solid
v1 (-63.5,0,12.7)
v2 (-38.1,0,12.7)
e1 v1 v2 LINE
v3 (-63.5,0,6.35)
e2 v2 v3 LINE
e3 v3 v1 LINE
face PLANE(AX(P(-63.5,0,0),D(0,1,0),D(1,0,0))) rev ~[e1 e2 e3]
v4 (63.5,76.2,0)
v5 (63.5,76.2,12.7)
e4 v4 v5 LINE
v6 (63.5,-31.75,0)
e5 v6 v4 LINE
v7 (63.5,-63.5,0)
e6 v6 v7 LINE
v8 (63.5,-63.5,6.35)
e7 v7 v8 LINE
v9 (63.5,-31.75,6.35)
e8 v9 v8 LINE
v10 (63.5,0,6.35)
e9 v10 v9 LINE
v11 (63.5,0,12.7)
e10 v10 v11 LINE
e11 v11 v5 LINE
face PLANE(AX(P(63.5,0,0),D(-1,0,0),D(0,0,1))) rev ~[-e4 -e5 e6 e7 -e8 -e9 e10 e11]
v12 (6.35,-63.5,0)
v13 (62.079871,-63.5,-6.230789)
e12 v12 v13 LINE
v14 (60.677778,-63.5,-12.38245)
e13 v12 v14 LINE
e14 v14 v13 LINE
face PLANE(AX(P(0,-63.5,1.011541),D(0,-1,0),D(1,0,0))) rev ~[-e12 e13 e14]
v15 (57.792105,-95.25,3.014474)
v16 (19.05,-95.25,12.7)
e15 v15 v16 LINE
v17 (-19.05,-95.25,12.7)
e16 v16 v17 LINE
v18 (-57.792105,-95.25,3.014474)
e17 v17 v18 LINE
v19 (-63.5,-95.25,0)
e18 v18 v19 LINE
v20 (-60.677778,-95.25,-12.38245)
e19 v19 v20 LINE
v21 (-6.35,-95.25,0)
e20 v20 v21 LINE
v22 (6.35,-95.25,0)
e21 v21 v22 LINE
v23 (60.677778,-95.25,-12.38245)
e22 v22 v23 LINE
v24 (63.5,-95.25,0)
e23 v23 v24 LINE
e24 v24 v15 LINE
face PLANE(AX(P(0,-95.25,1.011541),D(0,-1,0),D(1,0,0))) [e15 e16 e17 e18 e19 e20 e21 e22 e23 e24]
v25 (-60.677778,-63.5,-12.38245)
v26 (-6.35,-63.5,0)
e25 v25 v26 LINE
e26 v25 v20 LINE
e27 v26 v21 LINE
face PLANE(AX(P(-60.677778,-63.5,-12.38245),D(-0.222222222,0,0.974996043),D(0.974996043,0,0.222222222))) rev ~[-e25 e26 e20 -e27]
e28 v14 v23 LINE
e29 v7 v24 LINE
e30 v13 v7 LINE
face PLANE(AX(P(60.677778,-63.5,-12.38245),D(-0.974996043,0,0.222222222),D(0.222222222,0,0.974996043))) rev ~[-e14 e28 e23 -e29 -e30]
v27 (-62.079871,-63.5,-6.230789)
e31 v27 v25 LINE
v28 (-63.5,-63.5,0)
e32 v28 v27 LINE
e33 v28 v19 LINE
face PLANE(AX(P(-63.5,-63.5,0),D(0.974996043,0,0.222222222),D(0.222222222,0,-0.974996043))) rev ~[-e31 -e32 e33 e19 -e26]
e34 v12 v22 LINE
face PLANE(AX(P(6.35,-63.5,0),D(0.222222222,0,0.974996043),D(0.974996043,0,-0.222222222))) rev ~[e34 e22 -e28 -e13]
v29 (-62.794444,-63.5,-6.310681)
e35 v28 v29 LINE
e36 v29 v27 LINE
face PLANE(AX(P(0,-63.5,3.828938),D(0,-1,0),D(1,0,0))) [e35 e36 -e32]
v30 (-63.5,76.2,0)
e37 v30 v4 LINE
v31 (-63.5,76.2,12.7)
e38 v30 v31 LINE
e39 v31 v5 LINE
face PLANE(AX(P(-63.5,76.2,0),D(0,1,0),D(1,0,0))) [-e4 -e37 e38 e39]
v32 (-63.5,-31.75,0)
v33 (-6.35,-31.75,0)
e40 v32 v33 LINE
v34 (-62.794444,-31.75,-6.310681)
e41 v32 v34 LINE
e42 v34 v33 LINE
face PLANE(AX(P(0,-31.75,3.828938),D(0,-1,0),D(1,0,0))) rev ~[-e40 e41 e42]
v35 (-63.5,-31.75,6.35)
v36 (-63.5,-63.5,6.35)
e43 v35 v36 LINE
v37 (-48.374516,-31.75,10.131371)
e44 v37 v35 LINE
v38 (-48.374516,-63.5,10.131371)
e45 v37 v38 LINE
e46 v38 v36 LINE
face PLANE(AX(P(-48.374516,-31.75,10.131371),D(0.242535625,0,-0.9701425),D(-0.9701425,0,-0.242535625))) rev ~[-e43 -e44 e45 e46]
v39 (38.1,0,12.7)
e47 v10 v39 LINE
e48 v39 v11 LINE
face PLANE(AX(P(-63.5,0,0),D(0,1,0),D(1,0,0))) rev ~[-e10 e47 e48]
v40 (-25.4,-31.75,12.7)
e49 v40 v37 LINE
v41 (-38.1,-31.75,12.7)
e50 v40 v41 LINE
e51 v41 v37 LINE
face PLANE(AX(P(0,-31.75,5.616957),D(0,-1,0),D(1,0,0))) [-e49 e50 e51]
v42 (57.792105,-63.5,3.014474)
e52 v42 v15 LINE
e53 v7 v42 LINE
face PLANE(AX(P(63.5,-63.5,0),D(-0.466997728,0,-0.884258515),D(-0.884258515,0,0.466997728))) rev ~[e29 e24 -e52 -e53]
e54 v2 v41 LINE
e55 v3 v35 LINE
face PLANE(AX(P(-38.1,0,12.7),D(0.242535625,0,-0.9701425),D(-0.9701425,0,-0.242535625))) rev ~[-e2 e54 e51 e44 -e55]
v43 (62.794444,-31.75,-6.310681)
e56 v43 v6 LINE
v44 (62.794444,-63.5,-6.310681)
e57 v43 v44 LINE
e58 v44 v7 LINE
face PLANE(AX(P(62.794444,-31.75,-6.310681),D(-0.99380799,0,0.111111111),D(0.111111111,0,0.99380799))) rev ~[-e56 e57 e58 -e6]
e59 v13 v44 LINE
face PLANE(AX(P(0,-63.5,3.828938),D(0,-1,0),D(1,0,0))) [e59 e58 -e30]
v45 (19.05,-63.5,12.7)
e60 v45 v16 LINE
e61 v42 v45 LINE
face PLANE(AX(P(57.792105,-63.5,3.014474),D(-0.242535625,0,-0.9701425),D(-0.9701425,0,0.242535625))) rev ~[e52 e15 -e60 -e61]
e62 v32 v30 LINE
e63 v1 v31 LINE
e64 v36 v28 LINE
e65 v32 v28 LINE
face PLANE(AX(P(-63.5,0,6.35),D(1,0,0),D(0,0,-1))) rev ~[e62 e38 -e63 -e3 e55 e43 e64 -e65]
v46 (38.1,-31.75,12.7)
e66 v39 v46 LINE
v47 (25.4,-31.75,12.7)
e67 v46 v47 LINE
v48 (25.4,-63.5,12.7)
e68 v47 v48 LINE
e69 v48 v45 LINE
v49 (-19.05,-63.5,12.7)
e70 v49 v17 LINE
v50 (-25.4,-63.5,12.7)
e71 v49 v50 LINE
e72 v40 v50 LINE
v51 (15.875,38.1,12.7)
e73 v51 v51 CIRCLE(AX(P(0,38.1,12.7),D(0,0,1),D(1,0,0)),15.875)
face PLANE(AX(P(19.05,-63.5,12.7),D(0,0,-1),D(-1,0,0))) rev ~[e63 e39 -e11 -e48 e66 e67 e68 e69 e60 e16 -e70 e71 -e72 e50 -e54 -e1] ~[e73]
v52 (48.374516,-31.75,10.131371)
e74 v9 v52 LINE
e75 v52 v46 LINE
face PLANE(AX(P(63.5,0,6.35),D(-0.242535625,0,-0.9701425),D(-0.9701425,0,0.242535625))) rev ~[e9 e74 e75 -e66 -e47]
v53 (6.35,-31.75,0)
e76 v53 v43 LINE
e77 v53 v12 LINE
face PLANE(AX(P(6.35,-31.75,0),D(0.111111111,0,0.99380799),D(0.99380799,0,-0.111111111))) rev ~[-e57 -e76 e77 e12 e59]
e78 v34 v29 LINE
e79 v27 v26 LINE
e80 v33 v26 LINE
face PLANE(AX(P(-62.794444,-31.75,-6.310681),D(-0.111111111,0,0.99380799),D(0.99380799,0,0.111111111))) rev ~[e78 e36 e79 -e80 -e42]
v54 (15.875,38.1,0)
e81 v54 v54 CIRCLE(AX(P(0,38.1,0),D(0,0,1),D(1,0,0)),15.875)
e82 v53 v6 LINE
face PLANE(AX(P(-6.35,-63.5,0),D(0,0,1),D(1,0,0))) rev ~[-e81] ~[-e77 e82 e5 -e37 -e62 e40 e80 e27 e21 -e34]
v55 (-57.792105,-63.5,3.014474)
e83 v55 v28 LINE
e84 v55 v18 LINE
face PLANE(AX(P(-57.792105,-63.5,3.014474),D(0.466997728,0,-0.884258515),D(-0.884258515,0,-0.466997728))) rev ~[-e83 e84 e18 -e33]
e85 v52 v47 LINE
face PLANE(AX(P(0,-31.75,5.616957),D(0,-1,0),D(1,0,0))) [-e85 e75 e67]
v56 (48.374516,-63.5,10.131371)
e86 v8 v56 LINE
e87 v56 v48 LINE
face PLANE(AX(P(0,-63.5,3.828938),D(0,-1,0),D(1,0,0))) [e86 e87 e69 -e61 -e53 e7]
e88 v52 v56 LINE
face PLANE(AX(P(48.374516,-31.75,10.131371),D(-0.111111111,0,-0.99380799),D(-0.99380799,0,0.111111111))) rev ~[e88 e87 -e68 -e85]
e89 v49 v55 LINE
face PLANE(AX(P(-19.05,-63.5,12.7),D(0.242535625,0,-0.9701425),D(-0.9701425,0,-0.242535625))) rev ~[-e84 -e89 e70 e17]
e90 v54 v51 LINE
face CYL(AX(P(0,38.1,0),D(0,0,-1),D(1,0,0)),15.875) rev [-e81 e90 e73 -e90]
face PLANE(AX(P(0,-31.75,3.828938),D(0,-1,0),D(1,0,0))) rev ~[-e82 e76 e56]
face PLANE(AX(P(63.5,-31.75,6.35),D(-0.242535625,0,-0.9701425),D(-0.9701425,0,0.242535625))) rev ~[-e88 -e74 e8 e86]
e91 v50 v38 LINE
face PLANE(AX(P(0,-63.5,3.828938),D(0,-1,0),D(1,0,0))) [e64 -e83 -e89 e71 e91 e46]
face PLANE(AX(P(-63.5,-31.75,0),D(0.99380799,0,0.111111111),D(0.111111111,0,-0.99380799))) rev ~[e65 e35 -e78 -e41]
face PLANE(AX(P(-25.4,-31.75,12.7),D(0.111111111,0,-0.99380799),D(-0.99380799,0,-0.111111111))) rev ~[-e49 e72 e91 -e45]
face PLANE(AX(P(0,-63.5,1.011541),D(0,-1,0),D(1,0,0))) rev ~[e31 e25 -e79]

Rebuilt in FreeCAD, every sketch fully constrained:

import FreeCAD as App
import Part
import Sketcher

V = App.Vector
Q = App.Units.Quantity


def add_polygon(sketch, points):
    """Adds a closed chain of lines whose ends are joined by coincident constraints."""
    first, n = sketch.GeometryCount, len(points)
    for a, b in zip(points, points[1:] + points[:1]):
        sketch.addGeometry(Part.LineSegment(App.Vector(*a, 0), App.Vector(*b, 0)), False)
    for i in range(n):
        sketch.addConstraint(Sketcher.Constraint("Coincident", first + i, 2, first + (i + 1) % n, 1))

doc = App.newDocument("Part")
body = doc.addObject("PartDesign::Body", "Body")

# Sketch on XY plane
sketch1 = body.newObject("Sketcher::SketchObject", "Sketch")
sketch1.AttachmentSupport = (doc.getObject("XY_Plane"), [""])
sketch1.MapMode = "FlatFace"
add_polygon(sketch1, [(-64, 76), (-64, 0), (64, 0), (64, 76)])  # lines 0-3
sketch1.addGeometry(Part.Circle(V(0, 38, 0), V(0, 0, 1), 16), False)  # 4
sketch1.addConstraint([
    Sketcher.Constraint("Vertical", 0),
    Sketcher.Constraint("Horizontal", 1),
    Sketcher.Constraint("Vertical", 2),
    Sketcher.Constraint("Horizontal", 3),
    Sketcher.Constraint("Symmetric", 0, 2, 1, 2, -1, 1),
    Sketcher.Constraint("PointOnObject", 4, 3, -2),
    Sketcher.Constraint("Diameter", 4, Q("1.25 in")),
    Sketcher.Constraint("DistanceX", 1, 1, 1, 2, Q("5 in")),
    Sketcher.Constraint("DistanceY", 0, 2, 0, 1, Q("3 in")),
    Sketcher.Constraint("DistanceY", -1, 1, 4, 3, Q("1.5 in")),
])
pad1 = body.newObject("PartDesign::Pad", "Pad")
pad1.Profile = sketch1
pad1.Length = Q("0.5 in")

# Sketch on XZ plane
sketch2 = body.newObject("Sketcher::SketchObject", "Sketch001")
sketch2.AttachmentSupport = (doc.getObject("XZ_Plane"), [""])
sketch2.MapMode = "FlatFace"
add_polygon(sketch2, [(64, 0), (64, 6), (38, 13), (-38, 13), (-64, 6), (-64, 0)])  # lines 0-5
sketch2.addConstraint([
    Sketcher.Constraint("Vertical", 0),
    Sketcher.Constraint("Horizontal", 2),
    Sketcher.Constraint("Vertical", 4),
    Sketcher.Constraint("Horizontal", 5),
    Sketcher.Constraint("Symmetric", 4, 2, 5, 2, -1, 1),
    Sketcher.Constraint("Horizontal", 0, 2, 3, 2),
    Sketcher.Constraint("Equal", 1, 3),
    Sketcher.Constraint("DistanceX", 2, 2, 2, 1, Q("3 in")),
    Sketcher.Constraint("DistanceX", 5, 1, 5, 2, Q("5 in")),
    Sketcher.Constraint("DistanceY", 0, 1, 0, 2, Q("0.25 in")),
    Sketcher.Constraint("DistanceY", -1, 1, 1, 2, Q("0.5 in")),
])
pad2 = body.newObject("PartDesign::Pad", "Pad001")
pad2.Profile = sketch2
pad2.Length = Q("1.25 in")

# Sketch on XZ plane
sketch3 = body.newObject("Sketcher::SketchObject", "Sketch002")
sketch3.AttachmentSupport = (doc.getObject("XZ_Plane"), [""])
sketch3.MapMode = "FlatFace"
sketch3.AttachmentOffset = App.Placement(V(0, 0, 1.25 * 25.4), App.Rotation())
add_polygon(sketch3, [(-6, 0), (6, 0), (63, -6), (64, 0), (64, 6), (48, 10), (25, 13), (-25, 13), (-48, 10), (-64, 6), (-64, 0), (-63, -6)])  # lines 0-11
sketch3.addConstraint([
    Sketcher.Constraint("Horizontal", 0),
    Sketcher.Constraint("Vertical", 3),
    Sketcher.Constraint("Horizontal", 6),
    Sketcher.Constraint("Vertical", 9),
    Sketcher.Constraint("Symmetric", 2, 2, 9, 2, -1, 1),
    Sketcher.Constraint("Symmetric", 0, 2, 11, 2, -1, 1),
    Sketcher.Constraint("Symmetric", 4, 2, 7, 2, -2),
    Sketcher.Constraint("Symmetric", 1, 2, 10, 2, -2),
    Sketcher.Constraint("PointOnObject", 2, 2, -1),
    Sketcher.Constraint("Perpendicular", 1, 2),
    Sketcher.Constraint("Perpendicular", 2, 5),
    Sketcher.Constraint("Perpendicular", 7, 10),
    Sketcher.Constraint("Horizontal", 3, 2, 8, 2),
    Sketcher.Constraint("DistanceX", 6, 2, 6, 1, Q("2 in")),
    Sketcher.Constraint("DistanceX", 0, 1, 0, 2, Q("0.5 in")),
    Sketcher.Constraint("DistanceY", 3, 1, 3, 2, Q("0.25 in")),
    Sketcher.Constraint("DistanceX", -1, 1, 2, 2, Q("2.5 in")),
    Sketcher.Constraint("DistanceY", -1, 1, 5, 2, Q("0.5 in")),
    Sketcher.Constraint("Distance", 2, Q("0.25 in")),
    Sketcher.Constraint("Distance", 5, 23.117661),
])
pad3 = body.newObject("PartDesign::Pad", "Pad002")
pad3.Profile = sketch3
pad3.Length = Q("1.25 in")

# Sketch on XZ plane
sketch4 = body.newObject("Sketcher::SketchObject", "Sketch003")
sketch4.AttachmentSupport = (doc.getObject("XZ_Plane"), [""])
sketch4.MapMode = "FlatFace"
sketch4.AttachmentOffset = App.Placement(V(0, 0, 2.5 * 25.4), App.Rotation())
add_polygon(sketch4, [(-6, 0), (6, 0), (61, -12), (64, 0), (58, 3), (19, 13), (-19, 13), (-58, 3), (-64, 0), (-61, -12)])  # lines 0-9
sketch4.addConstraint([
    Sketcher.Constraint("Horizontal", 0),
    Sketcher.Constraint("Horizontal", 5),
    Sketcher.Constraint("Symmetric", 2, 2, 7, 2, -1, 1),
    Sketcher.Constraint("Symmetric", 0, 2, 9, 2, -1, 1),
    Sketcher.Constraint("Symmetric", 3, 2, 6, 2, -2),
    Sketcher.Constraint("Symmetric", 1, 2, 8, 2, -2),
    Sketcher.Constraint("PointOnObject", 2, 2, -1),
    Sketcher.Constraint("Perpendicular", 1, 2),
    Sketcher.Constraint("Equal", 4, 6),
    Sketcher.Constraint("DistanceX", 0, 1, 0, 2, Q("0.5 in")),
    Sketcher.Constraint("DistanceX", 5, 2, 5, 1, Q("1.5 in")),
    Sketcher.Constraint("Distance", 2, Q("0.5 in")),
    Sketcher.Constraint("DistanceX", -1, 1, 2, 2, Q("2.5 in")),
    Sketcher.Constraint("DistanceY", -1, 1, 4, 2, Q("0.5 in")),
    Sketcher.Constraint("DistanceX", 6, 2, 3, 2, 115.584209),
    Sketcher.Constraint("Distance", 3, 6.455007),
])
pad4 = body.newObject("PartDesign::Pad", "Pad003")
pad4.Profile = sketch4
pad4.Length = Q("1.25 in")

doc.recompute()
